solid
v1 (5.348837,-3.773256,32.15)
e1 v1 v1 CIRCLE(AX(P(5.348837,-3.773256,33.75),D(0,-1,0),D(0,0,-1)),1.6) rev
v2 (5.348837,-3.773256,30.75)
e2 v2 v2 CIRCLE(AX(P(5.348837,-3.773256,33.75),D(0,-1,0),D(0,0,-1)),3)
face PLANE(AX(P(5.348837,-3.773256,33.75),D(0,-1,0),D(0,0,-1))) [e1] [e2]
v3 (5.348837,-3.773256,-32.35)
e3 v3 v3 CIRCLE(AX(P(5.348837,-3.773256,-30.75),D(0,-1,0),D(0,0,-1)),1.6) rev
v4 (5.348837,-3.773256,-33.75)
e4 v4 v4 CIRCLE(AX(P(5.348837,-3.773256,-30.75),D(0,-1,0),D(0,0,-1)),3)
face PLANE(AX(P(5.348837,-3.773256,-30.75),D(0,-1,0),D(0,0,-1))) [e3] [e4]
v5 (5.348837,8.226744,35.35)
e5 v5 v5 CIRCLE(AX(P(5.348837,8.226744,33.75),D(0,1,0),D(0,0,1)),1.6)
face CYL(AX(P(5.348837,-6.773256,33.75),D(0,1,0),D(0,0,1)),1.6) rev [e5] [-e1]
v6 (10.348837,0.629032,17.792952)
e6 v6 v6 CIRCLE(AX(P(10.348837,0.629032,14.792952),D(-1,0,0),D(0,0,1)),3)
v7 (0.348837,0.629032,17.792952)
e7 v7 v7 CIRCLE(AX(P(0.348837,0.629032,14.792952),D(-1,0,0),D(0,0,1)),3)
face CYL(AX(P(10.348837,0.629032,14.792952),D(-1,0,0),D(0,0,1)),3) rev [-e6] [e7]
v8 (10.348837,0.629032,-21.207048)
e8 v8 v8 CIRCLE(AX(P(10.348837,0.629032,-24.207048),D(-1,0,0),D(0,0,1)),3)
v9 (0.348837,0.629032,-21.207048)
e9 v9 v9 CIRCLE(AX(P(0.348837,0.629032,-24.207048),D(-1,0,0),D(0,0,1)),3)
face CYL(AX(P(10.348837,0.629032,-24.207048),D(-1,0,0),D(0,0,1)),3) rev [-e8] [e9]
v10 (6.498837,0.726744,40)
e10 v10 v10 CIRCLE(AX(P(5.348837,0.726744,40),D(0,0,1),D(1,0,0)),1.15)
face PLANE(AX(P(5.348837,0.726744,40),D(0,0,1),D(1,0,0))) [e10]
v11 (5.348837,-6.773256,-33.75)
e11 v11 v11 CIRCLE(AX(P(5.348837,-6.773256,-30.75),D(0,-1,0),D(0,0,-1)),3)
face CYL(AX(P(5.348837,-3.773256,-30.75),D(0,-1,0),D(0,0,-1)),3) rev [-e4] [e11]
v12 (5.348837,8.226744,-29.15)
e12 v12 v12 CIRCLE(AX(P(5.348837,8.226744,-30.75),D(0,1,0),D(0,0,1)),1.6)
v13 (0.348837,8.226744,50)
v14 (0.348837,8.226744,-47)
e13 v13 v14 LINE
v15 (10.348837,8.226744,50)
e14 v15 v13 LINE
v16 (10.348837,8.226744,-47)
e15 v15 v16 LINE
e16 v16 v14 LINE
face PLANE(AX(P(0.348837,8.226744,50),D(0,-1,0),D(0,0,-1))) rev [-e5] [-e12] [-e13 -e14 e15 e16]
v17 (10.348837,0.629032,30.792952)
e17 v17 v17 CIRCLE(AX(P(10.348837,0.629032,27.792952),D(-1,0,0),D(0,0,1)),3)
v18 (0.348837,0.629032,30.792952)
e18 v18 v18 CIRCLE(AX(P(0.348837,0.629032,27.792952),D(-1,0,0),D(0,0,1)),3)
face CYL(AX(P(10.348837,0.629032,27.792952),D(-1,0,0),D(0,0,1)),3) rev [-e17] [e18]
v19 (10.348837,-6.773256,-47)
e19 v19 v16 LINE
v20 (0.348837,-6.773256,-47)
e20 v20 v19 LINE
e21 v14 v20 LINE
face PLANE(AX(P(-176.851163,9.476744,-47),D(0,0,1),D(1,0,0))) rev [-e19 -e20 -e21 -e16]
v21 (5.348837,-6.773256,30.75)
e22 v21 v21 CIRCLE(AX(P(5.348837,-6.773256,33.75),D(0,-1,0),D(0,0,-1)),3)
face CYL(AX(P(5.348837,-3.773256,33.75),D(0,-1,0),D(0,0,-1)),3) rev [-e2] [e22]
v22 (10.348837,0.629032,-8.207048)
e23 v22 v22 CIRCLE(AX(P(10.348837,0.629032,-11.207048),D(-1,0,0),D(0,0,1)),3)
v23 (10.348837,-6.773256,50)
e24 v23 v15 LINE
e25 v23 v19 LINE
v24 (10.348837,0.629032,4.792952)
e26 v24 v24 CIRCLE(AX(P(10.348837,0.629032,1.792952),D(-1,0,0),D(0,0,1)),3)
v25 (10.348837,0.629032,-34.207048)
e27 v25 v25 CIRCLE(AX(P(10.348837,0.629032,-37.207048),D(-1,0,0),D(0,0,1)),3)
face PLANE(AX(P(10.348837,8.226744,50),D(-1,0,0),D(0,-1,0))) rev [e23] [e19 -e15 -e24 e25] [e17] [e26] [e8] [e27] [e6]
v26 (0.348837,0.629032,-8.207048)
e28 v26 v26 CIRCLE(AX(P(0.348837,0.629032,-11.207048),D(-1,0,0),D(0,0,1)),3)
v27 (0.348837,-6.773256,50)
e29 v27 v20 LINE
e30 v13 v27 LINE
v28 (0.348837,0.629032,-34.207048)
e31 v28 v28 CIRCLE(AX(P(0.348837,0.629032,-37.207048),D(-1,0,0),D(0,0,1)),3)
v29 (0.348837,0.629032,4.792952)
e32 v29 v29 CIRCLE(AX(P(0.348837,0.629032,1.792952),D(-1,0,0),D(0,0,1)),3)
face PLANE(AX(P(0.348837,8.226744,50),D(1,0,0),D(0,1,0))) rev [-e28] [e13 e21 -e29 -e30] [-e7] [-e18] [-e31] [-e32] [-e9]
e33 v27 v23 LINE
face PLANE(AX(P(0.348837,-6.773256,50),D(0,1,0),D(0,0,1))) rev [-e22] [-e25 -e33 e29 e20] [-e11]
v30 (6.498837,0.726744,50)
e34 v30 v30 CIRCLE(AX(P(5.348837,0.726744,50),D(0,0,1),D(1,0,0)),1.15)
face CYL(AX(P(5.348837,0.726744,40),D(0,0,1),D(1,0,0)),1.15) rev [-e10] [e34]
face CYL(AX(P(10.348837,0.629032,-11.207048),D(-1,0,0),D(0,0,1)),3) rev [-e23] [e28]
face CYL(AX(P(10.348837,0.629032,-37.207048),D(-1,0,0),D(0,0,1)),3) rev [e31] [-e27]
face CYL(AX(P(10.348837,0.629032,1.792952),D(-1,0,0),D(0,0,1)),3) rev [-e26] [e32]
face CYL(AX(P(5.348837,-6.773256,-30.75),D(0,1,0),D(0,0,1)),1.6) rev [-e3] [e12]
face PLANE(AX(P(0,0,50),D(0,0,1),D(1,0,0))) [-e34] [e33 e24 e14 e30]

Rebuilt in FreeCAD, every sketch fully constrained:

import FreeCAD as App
import Part
import Sketcher

V = App.Vector

doc = App.newDocument("Part")
params = doc.addObject("Spreadsheet::Sheet", "Params")
for row, (alias, value) in enumerate([
    ("sketch1_width", "10 mm"),
    ("sketch1_height", "15 mm"),
    ("pad1_length", "50 mm"),
    ("sketch2_width", "10 mm"),
    ("sketch2_height", "15 mm"),
    ("pad2_length", "47 mm"),
    ("sketch3_diameter", "3.2 mm"),
    ("sketch4_diameter", "6 mm"),
    ("pocket2_length", "3 mm"),
    ("sketch5_diameter", "2.3 mm"),
    ("pocket3_length", "10 mm"),
    ("sketch6_diameter", "6 mm"),
], start=1):
    params.set(f"A{row}", alias)
    params.set(f"B{row}", "=" + value)
    params.setAlias(f"B{row}", alias)

body = doc.addObject("PartDesign::Body", "Body")

# Sketch on XY plane
sketch1 = doc.addObject("Sketcher::SketchObject", "Sketch")
body.addObject(sketch1)
sketch1.AttachmentSupport = (doc.XY_Plane, [""])
sketch1.MapMode = "FlatFace"
sketch1.addGeometry([
    Part.LineSegment(V(0.348837, 8.226744, 0), V(0.348837, -6.773256, 0)),
    Part.LineSegment(V(0.348837, -6.773256, 0), V(10.348837, -6.773256, 0)),
    Part.LineSegment(V(10.348837, -6.773256, 0), V(10.348837, 8.226744, 0)),
    Part.LineSegment(V(10.348837, 8.226744, 0), V(0.348837, 8.226744, 0)),
], False)
sketch1.addConstraint([
    Sketcher.Constraint("Coincident", 0, 2, 1, 1),
    Sketcher.Constraint("Coincident", 1, 2, 2, 1),
    Sketcher.Constraint("Coincident", 2, 2, 3, 1),
    Sketcher.Constraint("Coincident", 3, 2, 0, 1),
    Sketcher.Constraint("Vertical", 0),
    Sketcher.Constraint("Horizontal", 1),
    Sketcher.Constraint("Vertical", 2),
    Sketcher.Constraint("Horizontal", 3),
    Sketcher.Constraint("DistanceX", 1, 1, 1, 2, 10.0),
    Sketcher.Constraint("DistanceY", 0, 2, 0, 1, 15.0),
    Sketcher.Constraint("DistanceX", -1, 1, 0, 2, 0.348837),
    Sketcher.Constraint("DistanceY", 0, 2, -1, 1, 6.773256),
])
sketch1.setExpression("Constraints[8]", "Params.sketch1_width")
sketch1.setExpression("Constraints[9]", "Params.sketch1_height")
pad1 = doc.addObject("PartDesign::Pad", "Pad")
body.addObject(pad1)
pad1.Profile = sketch1
pad1.setExpression("Length", "Params.pad1_length")

# Sketch on XY plane
sketch2 = doc.addObject("Sketcher::SketchObject", "Sketch001")
body.addObject(sketch2)
sketch2.AttachmentSupport = (doc.XY_Plane, [""])
sketch2.MapMode = "FlatFace"
sketch2.addGeometry([
    Part.LineSegment(V(10.348837, 8.226744, 0), V(10.348837, -6.773256, 0)),
    Part.LineSegment(V(10.348837, -6.773256, 0), V(0.348837, -6.773256, 0)),
    Part.LineSegment(V(0.348837, -6.773256, 0), V(0.348837, 8.226744, 0)),
    Part.LineSegment(V(0.348837, 8.226744, 0), V(10.348837, 8.226744, 0)),
], False)
sketch2.addConstraint([
    Sketcher.Constraint("Coincident", 0, 2, 1, 1),
    Sketcher.Constraint("Coincident", 1, 2, 2, 1),
    Sketcher.Constraint("Coincident", 2, 2, 3, 1),
    Sketcher.Constraint("Coincident", 3, 2, 0, 1),
    Sketcher.Constraint("Vertical", 0),
    Sketcher.Constraint("Horizontal", 1),
    Sketcher.Constraint("Vertical", 2),
    Sketcher.Constraint("Horizontal", 3),
    Sketcher.Constraint("DistanceX", 1, 2, 1, 1, 10.0),
    Sketcher.Constraint("DistanceY", 0, 2, 0, 1, 15.0),
    Sketcher.Constraint("DistanceX", -1, 1, 0, 2, 10.348837),
    Sketcher.Constraint("DistanceY", 0, 2, -1, 1, 6.773256),
])
sketch2.setExpression("Constraints[8]", "Params.sketch2_width")
sketch2.setExpression("Constraints[9]", "Params.sketch2_height")
pad2 = doc.addObject("PartDesign::Pad", "Pad001")
body.addObject(pad2)
pad2.Profile = sketch2
pad2.setExpression("Length", "Params.pad2_length")
pad2.Reversed = True

# Sketch on XZ plane
sketch3 = doc.addObject("Sketcher::SketchObject", "Sketch002")
body.addObject(sketch3)
sketch3.AttachmentSupport = (doc.XZ_Plane, [""])
sketch3.MapMode = "FlatFace"
sketch3.AttachmentOffset = App.Placement(V(0, 0, -8.226744), App.Rotation())
sketch3.addGeometry([
    Part.Circle(V(5.348837, -30.75, 0), V(0, 0, 1), 1.6),
    Part.Circle(V(5.348837, 33.75, 0), V(0, 0, 1), 1.6),
], False)
sketch3.addConstraint([
    Sketcher.Constraint("Equal", 0, 1),
    Sketcher.Constraint("Vertical", 0, 3, 1, 3),
    Sketcher.Constraint("Diameter", 0, 3.2),
    Sketcher.Constraint("DistanceY", 0, 3, 1, 3, 64.5),
    Sketcher.Constraint("DistanceY", 0, 3, -1, 1, 30.75),
    Sketcher.Constraint("DistanceX", -1, 1, 0, 3, 5.348837),
])
sketch3.setExpression("Constraints[2]", "Params.sketch3_diameter")
pocket1 = doc.addObject("PartDesign::Pocket", "Pocket")
body.addObject(pocket1)
pocket1.Profile = sketch3
pocket1.Type = "ThroughAll"
pocket1.Reversed = True

# Sketch on XZ plane
sketch4 = doc.addObject("Sketcher::SketchObject", "Sketch003")
body.addObject(sketch4)
sketch4.AttachmentSupport = (doc.XZ_Plane, [""])
sketch4.MapMode = "FlatFace"
sketch4.AttachmentOffset = App.Placement(V(0, 0, 6.773256), App.Rotation())
sketch4.addGeometry([
    Part.Circle(V(5.348837, -30.75, 0), V(0, 0, 1), 3),
    Part.Circle(V(5.348837, 33.75, 0), V(0, 0, 1), 3),
], False)
sketch4.addConstraint([
    Sketcher.Constraint("Equal", 0, 1),
    Sketcher.Constraint("Vertical", 0, 3, 1, 3),
    Sketcher.Constraint("Diameter", 0, 6.0),
    Sketcher.Constraint("DistanceY", 0, 3, 1, 3, 64.5),
    Sketcher.Constraint("DistanceY", 0, 3, -1, 1, 30.75),
    Sketcher.Constraint("DistanceX", -1, 1, 0, 3, 5.348837),
])
sketch4.setExpression("Constraints[2]", "Params.sketch4_diameter")
pocket2 = doc.addObject("PartDesign::Pocket", "Pocket001")
body.addObject(pocket2)
pocket2.Profile = sketch4
pocket2.setExpression("Length", "Params.pocket2_length")

# Sketch on XY plane
sketch5 = doc.addObject("Sketcher::SketchObject", "Sketch004")
body.addObject(sketch5)
sketch5.AttachmentSupport = (doc.XY_Plane, [""])
sketch5.MapMode = "FlatFace"
sketch5.AttachmentOffset = App.Placement(V(0, 0, 50), App.Rotation())
sketch5.addGeometry(Part.Circle(V(5.348837, 0.726744, 0), V(0, 0, 1), 1.15), False)
sketch5.addConstraint([
    Sketcher.Constraint("Diameter", 0, 2.3),
    Sketcher.Constraint("DistanceX", -1, 1, 0, 3, 5.348837),
    Sketcher.Constraint("DistanceY", -1, 1, 0, 3, 0.726744),
])
sketch5.setExpression("Constraints[0]", "Params.sketch5_diameter")
pocket3 = doc.addObject("PartDesign::Pocket", "Pocket002")
body.addObject(pocket3)
pocket3.Profile = sketch5
pocket3.setExpression("Length", "Params.pocket3_length")

# Sketch on YZ plane
sketch6 = doc.addObject("Sketcher::SketchObject", "Sketch005")
body.addObject(sketch6)
sketch6.AttachmentSupport = (doc.YZ_Plane, [""])
sketch6.MapMode = "FlatFace"
sketch6.AttachmentOffset = App.Placement(V(0, 0, 5.348837), App.Rotation())
sketch6.addGeometry([
    Part.Circle(V(0.629032, 27.792952, 0), V(0, 0, 1), 3),  # 0
    Part.Circle(V(0.629032, 14.792952, 0), V(0, 0, 1), 3),  # 1
    Part.Circle(V(0.629032, 1.792952, 0), V(0, 0, 1), 3),  # 2
    Part.Circle(V(0.629032, -11.207048, 0), V(0, 0, 1), 3),  # 3
    Part.Circle(V(0.629032, -24.207048, 0), V(0, 0, 1), 3),  # 4
    Part.Circle(V(0.629032, -37.207048, 0), V(0, 0, 1), 3),  # 5
], False)
sketch6.addConstraint([
    Sketcher.Constraint("Equal", 0, 1),
    Sketcher.Constraint("Equal", 1, 2),
    Sketcher.Constraint("Equal", 2, 3),
    Sketcher.Constraint("Equal", 3, 4),
    Sketcher.Constraint("Equal", 4, 5),
    Sketcher.Constraint("Vertical", 0, 3, 1, 3),
    Sketcher.Constraint("Vertical", 1, 3, 2, 3),
    Sketcher.Constraint("Vertical", 2, 3, 3, 3),
    Sketcher.Constraint("Vertical", 3, 3, 4, 3),
    Sketcher.Constraint("Vertical", 4, 3, 5, 3),
    Sketcher.Constraint("Diameter", 0, 6.0),
    Sketcher.Constraint("DistanceY", 1, 3, 0, 3, 13.0),
    Sketcher.Constraint("DistanceY", 2, 3, 1, 3, 13.0),
    Sketcher.Constraint("DistanceY", 3, 3, 2, 3, 13.0),
    Sketcher.Constraint("DistanceY", 4, 3, 3, 3, 13.0),
    Sketcher.Constraint("DistanceY", 5, 3, 4, 3, 13.0),
    Sketcher.Constraint("DistanceX", -1, 1, 0, 3, 0.629032),
    Sketcher.Constraint("DistanceY", -1, 1, 0, 3, 27.792952),
])
sketch6.setExpression("Constraints[10]", "Params.sketch6_diameter")
pocket4 = doc.addObject("PartDesign::Pocket", "Pocket003")
body.addObject(pocket4)
pocket4.Profile = sketch6
pocket4.Type = "ThroughAll"
pocket4.Midplane = True

doc.recompute()
